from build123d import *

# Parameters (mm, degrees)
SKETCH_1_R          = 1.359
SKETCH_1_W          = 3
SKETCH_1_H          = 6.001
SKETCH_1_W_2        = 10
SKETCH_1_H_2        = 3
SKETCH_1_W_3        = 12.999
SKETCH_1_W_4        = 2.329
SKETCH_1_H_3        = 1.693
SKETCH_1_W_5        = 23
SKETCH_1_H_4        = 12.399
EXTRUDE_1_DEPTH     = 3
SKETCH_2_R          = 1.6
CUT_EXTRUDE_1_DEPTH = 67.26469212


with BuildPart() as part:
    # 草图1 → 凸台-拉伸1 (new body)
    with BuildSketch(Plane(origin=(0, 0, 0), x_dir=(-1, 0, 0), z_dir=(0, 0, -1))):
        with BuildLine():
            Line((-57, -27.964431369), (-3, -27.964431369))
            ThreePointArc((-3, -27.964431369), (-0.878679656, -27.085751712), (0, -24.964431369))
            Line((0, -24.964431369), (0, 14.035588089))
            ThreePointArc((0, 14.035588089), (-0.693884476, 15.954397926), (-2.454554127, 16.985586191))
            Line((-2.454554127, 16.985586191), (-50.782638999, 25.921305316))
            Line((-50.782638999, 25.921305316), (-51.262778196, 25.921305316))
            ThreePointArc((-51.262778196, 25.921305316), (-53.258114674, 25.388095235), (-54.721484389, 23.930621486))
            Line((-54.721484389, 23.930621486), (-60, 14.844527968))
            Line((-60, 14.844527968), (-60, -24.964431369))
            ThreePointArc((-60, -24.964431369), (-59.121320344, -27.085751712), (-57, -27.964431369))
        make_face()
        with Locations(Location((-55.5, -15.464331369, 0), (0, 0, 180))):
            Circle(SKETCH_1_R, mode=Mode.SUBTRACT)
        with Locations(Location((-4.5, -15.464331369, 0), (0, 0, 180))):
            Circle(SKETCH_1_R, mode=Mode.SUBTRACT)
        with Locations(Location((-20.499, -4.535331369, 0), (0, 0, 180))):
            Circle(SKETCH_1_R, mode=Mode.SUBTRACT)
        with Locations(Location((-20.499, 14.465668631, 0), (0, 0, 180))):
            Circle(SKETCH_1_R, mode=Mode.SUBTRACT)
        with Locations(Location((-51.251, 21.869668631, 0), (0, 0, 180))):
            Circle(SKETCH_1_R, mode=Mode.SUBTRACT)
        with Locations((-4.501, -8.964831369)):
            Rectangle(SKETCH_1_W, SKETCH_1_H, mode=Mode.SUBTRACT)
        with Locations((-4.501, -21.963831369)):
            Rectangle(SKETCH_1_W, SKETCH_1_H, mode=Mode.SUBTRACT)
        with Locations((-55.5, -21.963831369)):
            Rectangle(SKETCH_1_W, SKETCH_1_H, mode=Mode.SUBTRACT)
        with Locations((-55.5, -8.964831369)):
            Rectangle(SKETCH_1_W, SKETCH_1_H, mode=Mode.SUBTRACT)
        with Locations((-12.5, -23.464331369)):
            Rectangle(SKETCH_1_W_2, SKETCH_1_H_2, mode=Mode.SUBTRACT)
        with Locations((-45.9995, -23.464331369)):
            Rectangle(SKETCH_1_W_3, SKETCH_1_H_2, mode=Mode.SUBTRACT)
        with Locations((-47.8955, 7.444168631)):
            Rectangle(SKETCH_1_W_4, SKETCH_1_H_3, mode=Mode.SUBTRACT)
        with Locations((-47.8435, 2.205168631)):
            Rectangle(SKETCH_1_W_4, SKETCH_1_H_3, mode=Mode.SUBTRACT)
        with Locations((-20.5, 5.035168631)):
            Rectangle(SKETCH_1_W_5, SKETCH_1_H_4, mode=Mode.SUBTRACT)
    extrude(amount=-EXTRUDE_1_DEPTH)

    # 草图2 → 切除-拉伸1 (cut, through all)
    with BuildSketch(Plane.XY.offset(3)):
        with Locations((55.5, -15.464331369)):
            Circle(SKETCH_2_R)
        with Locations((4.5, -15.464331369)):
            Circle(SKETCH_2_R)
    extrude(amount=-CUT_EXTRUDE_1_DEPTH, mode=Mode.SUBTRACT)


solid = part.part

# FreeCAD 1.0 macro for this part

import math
import FreeCAD as App
import Part
import Sketcher

doc = App.newDocument("Part")
body = doc.addObject("PartDesign::Body", "Body")

sketch1 = body.newObject("Sketcher::SketchObject", "Sketch")
sketch1.AttachmentSupport = (doc.getObject("XY_Plane"), [""])
sketch1.MapMode = "FlatFace"
sketch1.addGeometry([
    Part.LineSegment(App.Vector(57, -27.964431, 0), App.Vector(3, -27.964431, 0)),
    Part.ArcOfCircle(Part.Circle(App.Vector(3, -24.964431, 0), App.Vector(0, 0, 1), 3), math.radians(180), math.radians(270)),
    Part.LineSegment(App.Vector(0, -24.964431, 0), App.Vector(0, 14.035588, 0)),
    Part.ArcOfCircle(Part.Circle(App.Vector(3, 14.035588, 0), App.Vector(0, 0, 1), 3), math.radians(100.475513), math.radians(180)),
    Part.LineSegment(App.Vector(2.454554, 16.985586, 0), App.Vector(50.782639, 25.921305, 0)),
    Part.LineSegment(App.Vector(50.782639, 25.921305, 0), App.Vector(51.262778, 25.921305, 0)),
    Part.ArcOfCircle(Part.Circle(App.Vector(51.262778, 21.921305, 0), App.Vector(0, 0, 1), 4), math.radians(30.154208), math.radians(90)),
    Part.LineSegment(App.Vector(54.721484, 23.930621, 0), App.Vector(60, 14.844528, 0)),
    Part.LineSegment(App.Vector(60, 14.844528, 0), App.Vector(60, -24.964431, 0)),
    Part.ArcOfCircle(Part.Circle(App.Vector(57, -24.964431, 0), App.Vector(0, 0, 1), 3), math.radians(-90), math.radians(0)),
    Part.LineSegment(App.Vector(54, -24.964331, 0), App.Vector(57, -24.964331, 0)),
    Part.LineSegment(App.Vector(57, -24.964331, 0), App.Vector(57, -18.963331, 0)),
    Part.LineSegment(App.Vector(57, -18.963331, 0), App.Vector(54, -18.963331, 0)),
    Part.LineSegment(App.Vector(54, -18.963331, 0), App.Vector(54, -24.964331, 0)),
    Part.LineSegment(App.Vector(39.5, -24.964331, 0), App.Vector(52.499, -24.964331, 0)),
    Part.LineSegment(App.Vector(52.499, -24.964331, 0), App.Vector(52.499, -21.964331, 0)),
    Part.LineSegment(App.Vector(52.499, -21.964331, 0), App.Vector(39.5, -21.964331, 0)),
    Part.LineSegment(App.Vector(39.5, -21.964331, 0), App.Vector(39.5, -24.964331, 0)),
    Part.Circle(App.Vector(55.5, -15.464331, 0), App.Vector(0, 0, 1), 1.359),
    Part.LineSegment(App.Vector(54, -11.965331, 0), App.Vector(57, -11.965331, 0)),
    Part.LineSegment(App.Vector(57, -11.965331, 0), App.Vector(57, -5.964331, 0)),
    Part.LineSegment(App.Vector(57, -5.964331, 0), App.Vector(54, -5.964331, 0)),
    Part.LineSegment(App.Vector(54, -5.964331, 0), App.Vector(54, -11.965331, 0)),
    Part.LineSegment(App.Vector(7.5, -24.964331, 0), App.Vector(17.5, -24.964331, 0)),
    Part.LineSegment(App.Vector(17.5, -24.964331, 0), App.Vector(17.5, -21.964331, 0)),
    Part.LineSegment(App.Vector(17.5, -21.964331, 0), App.Vector(7.5, -21.964331, 0)),
    Part.LineSegment(App.Vector(7.5, -21.964331, 0), App.Vector(7.5, -24.964331, 0)),
    Part.LineSegment(App.Vector(3.001, -24.964331, 0), App.Vector(6.001, -24.964331, 0)),
    Part.LineSegment(App.Vector(6.001, -24.964331, 0), App.Vector(6.001, -18.963331, 0)),
    Part.LineSegment(App.Vector(6.001, -18.963331, 0), App.Vector(3.001, -18.963331, 0)),
    Part.LineSegment(App.Vector(3.001, -18.963331, 0), App.Vector(3.001, -24.964331, 0)),
    Part.Circle(App.Vector(4.5, -15.464331, 0), App.Vector(0, 0, 1), 1.359),
    Part.Circle(App.Vector(20.499, -4.535331, 0), App.Vector(0, 0, 1), 1.359),
    Part.LineSegment(App.Vector(3.001, -11.965331, 0), App.Vector(6.001, -11.965331, 0)),
    Part.LineSegment(App.Vector(6.001, -11.965331, 0), App.Vector(6.001, -5.964331, 0)),
    Part.LineSegment(App.Vector(6.001, -5.964331, 0), App.Vector(3.001, -5.964331, 0)),
    Part.LineSegment(App.Vector(3.001, -5.964331, 0), App.Vector(3.001, -11.965331, 0)),
    Part.LineSegment(App.Vector(46.679, 1.358669, 0), App.Vector(49.008, 1.358669, 0)),
    Part.LineSegment(App.Vector(49.008, 1.358669, 0), App.Vector(49.008, 3.051669, 0)),
    Part.LineSegment(App.Vector(49.008, 3.051669, 0), App.Vector(46.679, 3.051669, 0)),
    Part.LineSegment(App.Vector(46.679, 3.051669, 0), App.Vector(46.679, 1.358669, 0)),
    Part.LineSegment(App.Vector(46.731, 6.597669, 0), App.Vector(49.06, 6.597669, 0)),
    Part.LineSegment(App.Vector(49.06, 6.597669, 0), App.Vector(49.06, 8.290669, 0)),
    Part.LineSegment(App.Vector(49.06, 8.290669, 0), App.Vector(46.731, 8.290669, 0)),
    Part.LineSegment(App.Vector(46.731, 8.290669, 0), App.Vector(46.731, 6.597669, 0)),
    Part.Circle(App.Vector(51.251, 21.869669, 0), App.Vector(0, 0, 1), 1.359),
    Part.LineSegment(App.Vector(9, -1.164331, 0), App.Vector(32, -1.164331, 0)),
    Part.LineSegment(App.Vector(32, -1.164331, 0), App.Vector(32, 11.234669, 0)),
    Part.LineSegment(App.Vector(32, 11.234669, 0), App.Vector(9, 11.234669, 0)),
    Part.LineSegment(App.Vector(9, 11.234669, 0), App.Vector(9, -1.164331, 0)),
    Part.Circle(App.Vector(20.499, 14.465669, 0), App.Vector(0, 0, 1), 1.359),
], False)
sketch1.addConstraint([
    Sketcher.Constraint("Tangent", 0, 2, 1, 2),
    Sketcher.Constraint("Tangent", 1, 1, 2, 1),
    Sketcher.Constraint("Tangent", 2, 2, 3, 2),
    Sketcher.Constraint("Tangent", 3, 1, 4, 1),
    Sketcher.Constraint("Coincident", 4, 2, 5, 1),
    Sketcher.Constraint("Tangent", 5, 2, 6, 2),
    Sketcher.Constraint("Tangent", 6, 1, 7, 1),
    Sketcher.Constraint("Coincident", 7, 2, 8, 1),
    Sketcher.Constraint("Tangent", 8, 2, 9, 2),
    Sketcher.Constraint("Tangent", 9, 1, 0, 1),
    Sketcher.Constraint("Coincident", 10, 2, 11, 1),
    Sketcher.Constraint("Coincident", 11, 2, 12, 1),
    Sketcher.Constraint("Coincident", 12, 2, 13, 1),
    Sketcher.Constraint("Coincident", 13, 2, 10, 1),
    Sketcher.Constraint("Coincident", 14, 2, 15, 1),
    Sketcher.Constraint("Coincident", 15, 2, 16, 1),
    Sketcher.Constraint("Coincident", 16, 2, 17, 1),
    Sketcher.Constraint("Coincident", 17, 2, 14, 1),
    Sketcher.Constraint("Coincident", 19, 2, 20, 1),
    Sketcher.Constraint("Coincident", 20, 2, 21, 1),
    Sketcher.Constraint("Coincident", 21, 2, 22, 1),
    Sketcher.Constraint("Coincident", 22, 2, 19, 1),
    Sketcher.Constraint("Coincident", 23, 2, 24, 1),
    Sketcher.Constraint("Coincident", 24, 2, 25, 1),
    Sketcher.Constraint("Coincident", 25, 2, 26, 1),
    Sketcher.Constraint("Coincident", 26, 2, 23, 1),
    Sketcher.Constraint("Coincident", 27, 2, 28, 1),
    Sketcher.Constraint("Coincident", 28, 2, 29, 1),
    Sketcher.Constraint("Coincident", 29, 2, 30, 1),
    Sketcher.Constraint("Coincident", 30, 2, 27, 1),
    Sketcher.Constraint("Coincident", 33, 2, 34, 1),
    Sketcher.Constraint("Coincident", 34, 2, 35, 1),
    Sketcher.Constraint("Coincident", 35, 2, 36, 1),
    Sketcher.Constraint("Coincident", 36, 2, 33, 1),
    Sketcher.Constraint("Coincident", 37, 2, 38, 1),
    Sketcher.Constraint("Coincident", 38, 2, 39, 1),
    Sketcher.Constraint("Coincident", 39, 2, 40, 1),
    Sketcher.Constraint("Coincident", 40, 2, 37, 1),
    Sketcher.Constraint("Coincident", 41, 2, 42, 1),
    Sketcher.Constraint("Coincident", 42, 2, 43, 1),
    Sketcher.Constraint("Coincident", 43, 2, 44, 1),
    Sketcher.Constraint("Coincident", 44, 2, 41, 1),
    Sketcher.Constraint("Coincident", 46, 2, 47, 1),
    Sketcher.Constraint("Coincident", 47, 2, 48, 1),
    Sketcher.Constraint("Coincident", 48, 2, 49, 1),
    Sketcher.Constraint("Coincident", 49, 2, 46, 1),
    Sketcher.Constraint("Horizontal", 0),
    Sketcher.Constraint("Vertical", 2),
    Sketcher.Constraint("Horizontal", 5),
    Sketcher.Constraint("Vertical", 8),
    Sketcher.Constraint("Horizontal", 10),
    Sketcher.Constraint("Vertical", 11),
    Sketcher.Constraint("Horizontal", 12),
    Sketcher.Constraint("Vertical", 13),
    Sketcher.Constraint("Horizontal", 14),
    Sketcher.Constraint("Vertical", 15),
    Sketcher.Constraint("Horizontal", 16),
    Sketcher.Constraint("Vertical", 17),
    Sketcher.Constraint("Horizontal", 19),
    Sketcher.Constraint("Vertical", 20),
    Sketcher.Constraint("Horizontal", 21),
    Sketcher.Constraint("Vertical", 22),
    Sketcher.Constraint("Horizontal", 23),
    Sketcher.Constraint("Vertical", 24),
    Sketcher.Constraint("Horizontal", 25),
    Sketcher.Constraint("Vertical", 26),
    Sketcher.Constraint("Horizontal", 27),
    Sketcher.Constraint("Vertical", 28),
    Sketcher.Constraint("Horizontal", 29),
    Sketcher.Constraint("Vertical", 30),
    Sketcher.Constraint("Horizontal", 33),
    Sketcher.Constraint("Vertical", 34),
    Sketcher.Constraint("Horizontal", 35),
    Sketcher.Constraint("Vertical", 36),
    Sketcher.Constraint("Horizontal", 37),
    Sketcher.Constraint("Vertical", 38),
    Sketcher.Constraint("Horizontal", 39),
    Sketcher.Constraint("Vertical", 40),
    Sketcher.Constraint("Horizontal", 41),
    Sketcher.Constraint("Vertical", 42),
    Sketcher.Constraint("Horizontal", 43),
    Sketcher.Constraint("Vertical", 44),
    Sketcher.Constraint("Horizontal", 46),
    Sketcher.Constraint("Vertical", 47),
    Sketcher.Constraint("Horizontal", 48),
    Sketcher.Constraint("Vertical", 49),
    Sketcher.Constraint("Equal", 1, 3),
    Sketcher.Constraint("Equal", 3, 9),
    Sketcher.Constraint("Equal", 18, 31),
    Sketcher.Constraint("Equal", 31, 32),
    Sketcher.Constraint("Equal", 32, 45),
    Sketcher.Constraint("Equal", 45, 50),
    Sketcher.Constraint("PointOnObject", 1, 1, -2),
    Sketcher.Constraint("Horizontal", 18, 3, 31, 3),
    Sketcher.Constraint("Horizontal", 13, 2, 14, 2),
    Sketcher.Constraint("Horizontal", 17, 2, 23, 2),
    Sketcher.Constraint("Horizontal", 16, 2, 24, 2),
    Sketcher.Constraint("Horizontal", 26, 2, 27, 2),
    Sketcher.Constraint("Horizontal", 12, 2, 28, 2),
    Sketcher.Constraint("Horizontal", 22, 2, 33, 2),
    Sketcher.Constraint("Horizontal", 21, 2, 34, 2),
    Sketcher.Constraint("Vertical", 32, 3, 50, 3),
    Sketcher.Constraint("Vertical", 9, 1, 10, 2),
    Sketcher.Constraint("Vertical", 11, 2, 19, 2),
    Sketcher.Constraint("Vertical", 13, 2, 21, 2),
    Sketcher.Constraint("Vertical", 28, 2, 33, 2),
    Sketcher.Constraint("Vertical", 30, 2, 35, 2),
    Sketcher.Constraint("Equal", 21, 27),
    Sketcher.Constraint("Equal", 39, 41),
    Sketcher.Constraint("Equal", 35, 15),
    Sketcher.Constraint("Equal", 13, 20),
    Sketcher.Constraint("Equal", 40, 42),
    Sketcher.Constraint("Radius", 1, 3.0),
    Sketcher.Constraint("Radius", 6, 4.0),
    Sketcher.Constraint("DistanceX", 0, 2, 0, 1, 54.0),
    Sketcher.Constraint("DistanceX", 10, 1, 10, 2, 3.0),
    Sketcher.Constraint("DistanceX", 23, 1, 23, 2, 10.0),
    Sketcher.Constraint("DistanceX", 46, 1, 46, 2, 23.0),
    Sketcher.Constraint("Diameter", 18, 2.718),
    Sketcher.Constraint("DistanceX", -1, 1, 46, 2, 32.0),
    Sketcher.Constraint("DistanceX", 31, 3, 18, 3, 51.0),
    Sketcher.Constraint("DistanceX", 16, 2, 18, 3, 16.0),
    Sketcher.Constraint("DistanceY", 15, 2, 20, 2, 16.0),
    Sketcher.Constraint("DistanceX", 31, 3, 23, 2, 13.0),
    Sketcher.Constraint("DistanceX", -1, 1, 18, 3, 55.5),
    Sketcher.Constraint("DistanceY", 10, 2, 18, 3, 9.5),
    Sketcher.Constraint("DistanceY", 34, 2, 49, 2, 4.8),
    Sketcher.Constraint("DistanceX", 14, 1, 14, 2, 12.999),
    Sketcher.Constraint("DistanceX", 37, 1, 37, 2, 2.329),
    Sketcher.Constraint("DistanceY", 11, 1, 11, 2, 6.001),
    Sketcher.Constraint("DistanceY", 38, 1, 38, 2, 1.693),
    Sketcher.Constraint("DistanceY", 47, 1, 47, 2, 12.399),
    Sketcher.Constraint("DistanceX", -1, 1, 41, 2, 49.06),
    Sketcher.Constraint("DistanceY", 31, 3, 50, 3, 29.93),
    Sketcher.Constraint("DistanceY", 3, 3, 3, 1, 2.949998),
    Sketcher.Constraint("DistanceX", -1, 1, 32, 3, 20.499),
    Sketcher.Constraint("DistanceX", -1, 1, 45, 3, 51.251),
    Sketcher.Constraint("DistanceX", -1, 1, 27, 2, 6.001),
    Sketcher.Constraint("DistanceX", -1, 1, 37, 2, 49.008),
    Sketcher.Constraint("DistanceY", 31, 3, 32, 3, 10.929),
    Sketcher.Constraint("DistanceY", 18, 3, 45, 3, 37.334),
    Sketcher.Constraint("DistanceY", 21, 2, 37, 2, 7.323),
    Sketcher.Constraint("DistanceY", 38, 2, 41, 2, 3.546),
    Sketcher.Constraint("DistanceX", 5, 1, 5, 2, 0.480139),
    Sketcher.Constraint("DistanceY", 2, 1, 2, 2, 39.000019),
    Sketcher.Constraint("DistanceY", 8, 2, 8, 1, 39.808959),
    Sketcher.Constraint("DistanceY", 9, 3, 18, 3, 9.5001),
    Sketcher.Constraint("DistanceY", 1, 3, -1, 1, 24.964431),
    Sketcher.Constraint("DistanceX", -1, 1, 6, 3, 51.262778),
])
pad1 = body.newObject("PartDesign::Pad", "Pad")
pad1.Profile = sketch1
pad1.Length = 3

sketch2 = body.newObject("Sketcher::SketchObject", "Sketch001")
sketch2.AttachmentSupport = (doc.getObject("XY_Plane"), [""])
sketch2.MapMode = "FlatFace"
sketch2.AttachmentOffset = App.Placement(App.Vector(0, 0, 3), App.Rotation())
sketch2.addGeometry([
    Part.Circle(App.Vector(55.5, -15.464331, 0), App.Vector(0, 0, 1), 1.6),
    Part.Circle(App.Vector(4.5, -15.464331, 0), App.Vector(0, 0, 1), 1.6),
], False)
sketch2.addConstraint([
    Sketcher.Constraint("Equal", 0, 1),
    Sketcher.Constraint("Horizontal", 0, 3, 1, 3),
    Sketcher.Constraint("Diameter", 0, 3.2),
    Sketcher.Constraint("DistanceX", 1, 3, 0, 3, 51.0),
    Sketcher.Constraint("DistanceX", -1, 1, 0, 3, 55.5),
    Sketcher.Constraint("DistanceY", 0, 3, -1, 1, 15.464331),
])
pocket1 = body.newObject("PartDesign::Pocket", "Pocket")
pocket1.Profile = sketch2
pocket1.Type = "ThroughAll"

doc.recompute()
